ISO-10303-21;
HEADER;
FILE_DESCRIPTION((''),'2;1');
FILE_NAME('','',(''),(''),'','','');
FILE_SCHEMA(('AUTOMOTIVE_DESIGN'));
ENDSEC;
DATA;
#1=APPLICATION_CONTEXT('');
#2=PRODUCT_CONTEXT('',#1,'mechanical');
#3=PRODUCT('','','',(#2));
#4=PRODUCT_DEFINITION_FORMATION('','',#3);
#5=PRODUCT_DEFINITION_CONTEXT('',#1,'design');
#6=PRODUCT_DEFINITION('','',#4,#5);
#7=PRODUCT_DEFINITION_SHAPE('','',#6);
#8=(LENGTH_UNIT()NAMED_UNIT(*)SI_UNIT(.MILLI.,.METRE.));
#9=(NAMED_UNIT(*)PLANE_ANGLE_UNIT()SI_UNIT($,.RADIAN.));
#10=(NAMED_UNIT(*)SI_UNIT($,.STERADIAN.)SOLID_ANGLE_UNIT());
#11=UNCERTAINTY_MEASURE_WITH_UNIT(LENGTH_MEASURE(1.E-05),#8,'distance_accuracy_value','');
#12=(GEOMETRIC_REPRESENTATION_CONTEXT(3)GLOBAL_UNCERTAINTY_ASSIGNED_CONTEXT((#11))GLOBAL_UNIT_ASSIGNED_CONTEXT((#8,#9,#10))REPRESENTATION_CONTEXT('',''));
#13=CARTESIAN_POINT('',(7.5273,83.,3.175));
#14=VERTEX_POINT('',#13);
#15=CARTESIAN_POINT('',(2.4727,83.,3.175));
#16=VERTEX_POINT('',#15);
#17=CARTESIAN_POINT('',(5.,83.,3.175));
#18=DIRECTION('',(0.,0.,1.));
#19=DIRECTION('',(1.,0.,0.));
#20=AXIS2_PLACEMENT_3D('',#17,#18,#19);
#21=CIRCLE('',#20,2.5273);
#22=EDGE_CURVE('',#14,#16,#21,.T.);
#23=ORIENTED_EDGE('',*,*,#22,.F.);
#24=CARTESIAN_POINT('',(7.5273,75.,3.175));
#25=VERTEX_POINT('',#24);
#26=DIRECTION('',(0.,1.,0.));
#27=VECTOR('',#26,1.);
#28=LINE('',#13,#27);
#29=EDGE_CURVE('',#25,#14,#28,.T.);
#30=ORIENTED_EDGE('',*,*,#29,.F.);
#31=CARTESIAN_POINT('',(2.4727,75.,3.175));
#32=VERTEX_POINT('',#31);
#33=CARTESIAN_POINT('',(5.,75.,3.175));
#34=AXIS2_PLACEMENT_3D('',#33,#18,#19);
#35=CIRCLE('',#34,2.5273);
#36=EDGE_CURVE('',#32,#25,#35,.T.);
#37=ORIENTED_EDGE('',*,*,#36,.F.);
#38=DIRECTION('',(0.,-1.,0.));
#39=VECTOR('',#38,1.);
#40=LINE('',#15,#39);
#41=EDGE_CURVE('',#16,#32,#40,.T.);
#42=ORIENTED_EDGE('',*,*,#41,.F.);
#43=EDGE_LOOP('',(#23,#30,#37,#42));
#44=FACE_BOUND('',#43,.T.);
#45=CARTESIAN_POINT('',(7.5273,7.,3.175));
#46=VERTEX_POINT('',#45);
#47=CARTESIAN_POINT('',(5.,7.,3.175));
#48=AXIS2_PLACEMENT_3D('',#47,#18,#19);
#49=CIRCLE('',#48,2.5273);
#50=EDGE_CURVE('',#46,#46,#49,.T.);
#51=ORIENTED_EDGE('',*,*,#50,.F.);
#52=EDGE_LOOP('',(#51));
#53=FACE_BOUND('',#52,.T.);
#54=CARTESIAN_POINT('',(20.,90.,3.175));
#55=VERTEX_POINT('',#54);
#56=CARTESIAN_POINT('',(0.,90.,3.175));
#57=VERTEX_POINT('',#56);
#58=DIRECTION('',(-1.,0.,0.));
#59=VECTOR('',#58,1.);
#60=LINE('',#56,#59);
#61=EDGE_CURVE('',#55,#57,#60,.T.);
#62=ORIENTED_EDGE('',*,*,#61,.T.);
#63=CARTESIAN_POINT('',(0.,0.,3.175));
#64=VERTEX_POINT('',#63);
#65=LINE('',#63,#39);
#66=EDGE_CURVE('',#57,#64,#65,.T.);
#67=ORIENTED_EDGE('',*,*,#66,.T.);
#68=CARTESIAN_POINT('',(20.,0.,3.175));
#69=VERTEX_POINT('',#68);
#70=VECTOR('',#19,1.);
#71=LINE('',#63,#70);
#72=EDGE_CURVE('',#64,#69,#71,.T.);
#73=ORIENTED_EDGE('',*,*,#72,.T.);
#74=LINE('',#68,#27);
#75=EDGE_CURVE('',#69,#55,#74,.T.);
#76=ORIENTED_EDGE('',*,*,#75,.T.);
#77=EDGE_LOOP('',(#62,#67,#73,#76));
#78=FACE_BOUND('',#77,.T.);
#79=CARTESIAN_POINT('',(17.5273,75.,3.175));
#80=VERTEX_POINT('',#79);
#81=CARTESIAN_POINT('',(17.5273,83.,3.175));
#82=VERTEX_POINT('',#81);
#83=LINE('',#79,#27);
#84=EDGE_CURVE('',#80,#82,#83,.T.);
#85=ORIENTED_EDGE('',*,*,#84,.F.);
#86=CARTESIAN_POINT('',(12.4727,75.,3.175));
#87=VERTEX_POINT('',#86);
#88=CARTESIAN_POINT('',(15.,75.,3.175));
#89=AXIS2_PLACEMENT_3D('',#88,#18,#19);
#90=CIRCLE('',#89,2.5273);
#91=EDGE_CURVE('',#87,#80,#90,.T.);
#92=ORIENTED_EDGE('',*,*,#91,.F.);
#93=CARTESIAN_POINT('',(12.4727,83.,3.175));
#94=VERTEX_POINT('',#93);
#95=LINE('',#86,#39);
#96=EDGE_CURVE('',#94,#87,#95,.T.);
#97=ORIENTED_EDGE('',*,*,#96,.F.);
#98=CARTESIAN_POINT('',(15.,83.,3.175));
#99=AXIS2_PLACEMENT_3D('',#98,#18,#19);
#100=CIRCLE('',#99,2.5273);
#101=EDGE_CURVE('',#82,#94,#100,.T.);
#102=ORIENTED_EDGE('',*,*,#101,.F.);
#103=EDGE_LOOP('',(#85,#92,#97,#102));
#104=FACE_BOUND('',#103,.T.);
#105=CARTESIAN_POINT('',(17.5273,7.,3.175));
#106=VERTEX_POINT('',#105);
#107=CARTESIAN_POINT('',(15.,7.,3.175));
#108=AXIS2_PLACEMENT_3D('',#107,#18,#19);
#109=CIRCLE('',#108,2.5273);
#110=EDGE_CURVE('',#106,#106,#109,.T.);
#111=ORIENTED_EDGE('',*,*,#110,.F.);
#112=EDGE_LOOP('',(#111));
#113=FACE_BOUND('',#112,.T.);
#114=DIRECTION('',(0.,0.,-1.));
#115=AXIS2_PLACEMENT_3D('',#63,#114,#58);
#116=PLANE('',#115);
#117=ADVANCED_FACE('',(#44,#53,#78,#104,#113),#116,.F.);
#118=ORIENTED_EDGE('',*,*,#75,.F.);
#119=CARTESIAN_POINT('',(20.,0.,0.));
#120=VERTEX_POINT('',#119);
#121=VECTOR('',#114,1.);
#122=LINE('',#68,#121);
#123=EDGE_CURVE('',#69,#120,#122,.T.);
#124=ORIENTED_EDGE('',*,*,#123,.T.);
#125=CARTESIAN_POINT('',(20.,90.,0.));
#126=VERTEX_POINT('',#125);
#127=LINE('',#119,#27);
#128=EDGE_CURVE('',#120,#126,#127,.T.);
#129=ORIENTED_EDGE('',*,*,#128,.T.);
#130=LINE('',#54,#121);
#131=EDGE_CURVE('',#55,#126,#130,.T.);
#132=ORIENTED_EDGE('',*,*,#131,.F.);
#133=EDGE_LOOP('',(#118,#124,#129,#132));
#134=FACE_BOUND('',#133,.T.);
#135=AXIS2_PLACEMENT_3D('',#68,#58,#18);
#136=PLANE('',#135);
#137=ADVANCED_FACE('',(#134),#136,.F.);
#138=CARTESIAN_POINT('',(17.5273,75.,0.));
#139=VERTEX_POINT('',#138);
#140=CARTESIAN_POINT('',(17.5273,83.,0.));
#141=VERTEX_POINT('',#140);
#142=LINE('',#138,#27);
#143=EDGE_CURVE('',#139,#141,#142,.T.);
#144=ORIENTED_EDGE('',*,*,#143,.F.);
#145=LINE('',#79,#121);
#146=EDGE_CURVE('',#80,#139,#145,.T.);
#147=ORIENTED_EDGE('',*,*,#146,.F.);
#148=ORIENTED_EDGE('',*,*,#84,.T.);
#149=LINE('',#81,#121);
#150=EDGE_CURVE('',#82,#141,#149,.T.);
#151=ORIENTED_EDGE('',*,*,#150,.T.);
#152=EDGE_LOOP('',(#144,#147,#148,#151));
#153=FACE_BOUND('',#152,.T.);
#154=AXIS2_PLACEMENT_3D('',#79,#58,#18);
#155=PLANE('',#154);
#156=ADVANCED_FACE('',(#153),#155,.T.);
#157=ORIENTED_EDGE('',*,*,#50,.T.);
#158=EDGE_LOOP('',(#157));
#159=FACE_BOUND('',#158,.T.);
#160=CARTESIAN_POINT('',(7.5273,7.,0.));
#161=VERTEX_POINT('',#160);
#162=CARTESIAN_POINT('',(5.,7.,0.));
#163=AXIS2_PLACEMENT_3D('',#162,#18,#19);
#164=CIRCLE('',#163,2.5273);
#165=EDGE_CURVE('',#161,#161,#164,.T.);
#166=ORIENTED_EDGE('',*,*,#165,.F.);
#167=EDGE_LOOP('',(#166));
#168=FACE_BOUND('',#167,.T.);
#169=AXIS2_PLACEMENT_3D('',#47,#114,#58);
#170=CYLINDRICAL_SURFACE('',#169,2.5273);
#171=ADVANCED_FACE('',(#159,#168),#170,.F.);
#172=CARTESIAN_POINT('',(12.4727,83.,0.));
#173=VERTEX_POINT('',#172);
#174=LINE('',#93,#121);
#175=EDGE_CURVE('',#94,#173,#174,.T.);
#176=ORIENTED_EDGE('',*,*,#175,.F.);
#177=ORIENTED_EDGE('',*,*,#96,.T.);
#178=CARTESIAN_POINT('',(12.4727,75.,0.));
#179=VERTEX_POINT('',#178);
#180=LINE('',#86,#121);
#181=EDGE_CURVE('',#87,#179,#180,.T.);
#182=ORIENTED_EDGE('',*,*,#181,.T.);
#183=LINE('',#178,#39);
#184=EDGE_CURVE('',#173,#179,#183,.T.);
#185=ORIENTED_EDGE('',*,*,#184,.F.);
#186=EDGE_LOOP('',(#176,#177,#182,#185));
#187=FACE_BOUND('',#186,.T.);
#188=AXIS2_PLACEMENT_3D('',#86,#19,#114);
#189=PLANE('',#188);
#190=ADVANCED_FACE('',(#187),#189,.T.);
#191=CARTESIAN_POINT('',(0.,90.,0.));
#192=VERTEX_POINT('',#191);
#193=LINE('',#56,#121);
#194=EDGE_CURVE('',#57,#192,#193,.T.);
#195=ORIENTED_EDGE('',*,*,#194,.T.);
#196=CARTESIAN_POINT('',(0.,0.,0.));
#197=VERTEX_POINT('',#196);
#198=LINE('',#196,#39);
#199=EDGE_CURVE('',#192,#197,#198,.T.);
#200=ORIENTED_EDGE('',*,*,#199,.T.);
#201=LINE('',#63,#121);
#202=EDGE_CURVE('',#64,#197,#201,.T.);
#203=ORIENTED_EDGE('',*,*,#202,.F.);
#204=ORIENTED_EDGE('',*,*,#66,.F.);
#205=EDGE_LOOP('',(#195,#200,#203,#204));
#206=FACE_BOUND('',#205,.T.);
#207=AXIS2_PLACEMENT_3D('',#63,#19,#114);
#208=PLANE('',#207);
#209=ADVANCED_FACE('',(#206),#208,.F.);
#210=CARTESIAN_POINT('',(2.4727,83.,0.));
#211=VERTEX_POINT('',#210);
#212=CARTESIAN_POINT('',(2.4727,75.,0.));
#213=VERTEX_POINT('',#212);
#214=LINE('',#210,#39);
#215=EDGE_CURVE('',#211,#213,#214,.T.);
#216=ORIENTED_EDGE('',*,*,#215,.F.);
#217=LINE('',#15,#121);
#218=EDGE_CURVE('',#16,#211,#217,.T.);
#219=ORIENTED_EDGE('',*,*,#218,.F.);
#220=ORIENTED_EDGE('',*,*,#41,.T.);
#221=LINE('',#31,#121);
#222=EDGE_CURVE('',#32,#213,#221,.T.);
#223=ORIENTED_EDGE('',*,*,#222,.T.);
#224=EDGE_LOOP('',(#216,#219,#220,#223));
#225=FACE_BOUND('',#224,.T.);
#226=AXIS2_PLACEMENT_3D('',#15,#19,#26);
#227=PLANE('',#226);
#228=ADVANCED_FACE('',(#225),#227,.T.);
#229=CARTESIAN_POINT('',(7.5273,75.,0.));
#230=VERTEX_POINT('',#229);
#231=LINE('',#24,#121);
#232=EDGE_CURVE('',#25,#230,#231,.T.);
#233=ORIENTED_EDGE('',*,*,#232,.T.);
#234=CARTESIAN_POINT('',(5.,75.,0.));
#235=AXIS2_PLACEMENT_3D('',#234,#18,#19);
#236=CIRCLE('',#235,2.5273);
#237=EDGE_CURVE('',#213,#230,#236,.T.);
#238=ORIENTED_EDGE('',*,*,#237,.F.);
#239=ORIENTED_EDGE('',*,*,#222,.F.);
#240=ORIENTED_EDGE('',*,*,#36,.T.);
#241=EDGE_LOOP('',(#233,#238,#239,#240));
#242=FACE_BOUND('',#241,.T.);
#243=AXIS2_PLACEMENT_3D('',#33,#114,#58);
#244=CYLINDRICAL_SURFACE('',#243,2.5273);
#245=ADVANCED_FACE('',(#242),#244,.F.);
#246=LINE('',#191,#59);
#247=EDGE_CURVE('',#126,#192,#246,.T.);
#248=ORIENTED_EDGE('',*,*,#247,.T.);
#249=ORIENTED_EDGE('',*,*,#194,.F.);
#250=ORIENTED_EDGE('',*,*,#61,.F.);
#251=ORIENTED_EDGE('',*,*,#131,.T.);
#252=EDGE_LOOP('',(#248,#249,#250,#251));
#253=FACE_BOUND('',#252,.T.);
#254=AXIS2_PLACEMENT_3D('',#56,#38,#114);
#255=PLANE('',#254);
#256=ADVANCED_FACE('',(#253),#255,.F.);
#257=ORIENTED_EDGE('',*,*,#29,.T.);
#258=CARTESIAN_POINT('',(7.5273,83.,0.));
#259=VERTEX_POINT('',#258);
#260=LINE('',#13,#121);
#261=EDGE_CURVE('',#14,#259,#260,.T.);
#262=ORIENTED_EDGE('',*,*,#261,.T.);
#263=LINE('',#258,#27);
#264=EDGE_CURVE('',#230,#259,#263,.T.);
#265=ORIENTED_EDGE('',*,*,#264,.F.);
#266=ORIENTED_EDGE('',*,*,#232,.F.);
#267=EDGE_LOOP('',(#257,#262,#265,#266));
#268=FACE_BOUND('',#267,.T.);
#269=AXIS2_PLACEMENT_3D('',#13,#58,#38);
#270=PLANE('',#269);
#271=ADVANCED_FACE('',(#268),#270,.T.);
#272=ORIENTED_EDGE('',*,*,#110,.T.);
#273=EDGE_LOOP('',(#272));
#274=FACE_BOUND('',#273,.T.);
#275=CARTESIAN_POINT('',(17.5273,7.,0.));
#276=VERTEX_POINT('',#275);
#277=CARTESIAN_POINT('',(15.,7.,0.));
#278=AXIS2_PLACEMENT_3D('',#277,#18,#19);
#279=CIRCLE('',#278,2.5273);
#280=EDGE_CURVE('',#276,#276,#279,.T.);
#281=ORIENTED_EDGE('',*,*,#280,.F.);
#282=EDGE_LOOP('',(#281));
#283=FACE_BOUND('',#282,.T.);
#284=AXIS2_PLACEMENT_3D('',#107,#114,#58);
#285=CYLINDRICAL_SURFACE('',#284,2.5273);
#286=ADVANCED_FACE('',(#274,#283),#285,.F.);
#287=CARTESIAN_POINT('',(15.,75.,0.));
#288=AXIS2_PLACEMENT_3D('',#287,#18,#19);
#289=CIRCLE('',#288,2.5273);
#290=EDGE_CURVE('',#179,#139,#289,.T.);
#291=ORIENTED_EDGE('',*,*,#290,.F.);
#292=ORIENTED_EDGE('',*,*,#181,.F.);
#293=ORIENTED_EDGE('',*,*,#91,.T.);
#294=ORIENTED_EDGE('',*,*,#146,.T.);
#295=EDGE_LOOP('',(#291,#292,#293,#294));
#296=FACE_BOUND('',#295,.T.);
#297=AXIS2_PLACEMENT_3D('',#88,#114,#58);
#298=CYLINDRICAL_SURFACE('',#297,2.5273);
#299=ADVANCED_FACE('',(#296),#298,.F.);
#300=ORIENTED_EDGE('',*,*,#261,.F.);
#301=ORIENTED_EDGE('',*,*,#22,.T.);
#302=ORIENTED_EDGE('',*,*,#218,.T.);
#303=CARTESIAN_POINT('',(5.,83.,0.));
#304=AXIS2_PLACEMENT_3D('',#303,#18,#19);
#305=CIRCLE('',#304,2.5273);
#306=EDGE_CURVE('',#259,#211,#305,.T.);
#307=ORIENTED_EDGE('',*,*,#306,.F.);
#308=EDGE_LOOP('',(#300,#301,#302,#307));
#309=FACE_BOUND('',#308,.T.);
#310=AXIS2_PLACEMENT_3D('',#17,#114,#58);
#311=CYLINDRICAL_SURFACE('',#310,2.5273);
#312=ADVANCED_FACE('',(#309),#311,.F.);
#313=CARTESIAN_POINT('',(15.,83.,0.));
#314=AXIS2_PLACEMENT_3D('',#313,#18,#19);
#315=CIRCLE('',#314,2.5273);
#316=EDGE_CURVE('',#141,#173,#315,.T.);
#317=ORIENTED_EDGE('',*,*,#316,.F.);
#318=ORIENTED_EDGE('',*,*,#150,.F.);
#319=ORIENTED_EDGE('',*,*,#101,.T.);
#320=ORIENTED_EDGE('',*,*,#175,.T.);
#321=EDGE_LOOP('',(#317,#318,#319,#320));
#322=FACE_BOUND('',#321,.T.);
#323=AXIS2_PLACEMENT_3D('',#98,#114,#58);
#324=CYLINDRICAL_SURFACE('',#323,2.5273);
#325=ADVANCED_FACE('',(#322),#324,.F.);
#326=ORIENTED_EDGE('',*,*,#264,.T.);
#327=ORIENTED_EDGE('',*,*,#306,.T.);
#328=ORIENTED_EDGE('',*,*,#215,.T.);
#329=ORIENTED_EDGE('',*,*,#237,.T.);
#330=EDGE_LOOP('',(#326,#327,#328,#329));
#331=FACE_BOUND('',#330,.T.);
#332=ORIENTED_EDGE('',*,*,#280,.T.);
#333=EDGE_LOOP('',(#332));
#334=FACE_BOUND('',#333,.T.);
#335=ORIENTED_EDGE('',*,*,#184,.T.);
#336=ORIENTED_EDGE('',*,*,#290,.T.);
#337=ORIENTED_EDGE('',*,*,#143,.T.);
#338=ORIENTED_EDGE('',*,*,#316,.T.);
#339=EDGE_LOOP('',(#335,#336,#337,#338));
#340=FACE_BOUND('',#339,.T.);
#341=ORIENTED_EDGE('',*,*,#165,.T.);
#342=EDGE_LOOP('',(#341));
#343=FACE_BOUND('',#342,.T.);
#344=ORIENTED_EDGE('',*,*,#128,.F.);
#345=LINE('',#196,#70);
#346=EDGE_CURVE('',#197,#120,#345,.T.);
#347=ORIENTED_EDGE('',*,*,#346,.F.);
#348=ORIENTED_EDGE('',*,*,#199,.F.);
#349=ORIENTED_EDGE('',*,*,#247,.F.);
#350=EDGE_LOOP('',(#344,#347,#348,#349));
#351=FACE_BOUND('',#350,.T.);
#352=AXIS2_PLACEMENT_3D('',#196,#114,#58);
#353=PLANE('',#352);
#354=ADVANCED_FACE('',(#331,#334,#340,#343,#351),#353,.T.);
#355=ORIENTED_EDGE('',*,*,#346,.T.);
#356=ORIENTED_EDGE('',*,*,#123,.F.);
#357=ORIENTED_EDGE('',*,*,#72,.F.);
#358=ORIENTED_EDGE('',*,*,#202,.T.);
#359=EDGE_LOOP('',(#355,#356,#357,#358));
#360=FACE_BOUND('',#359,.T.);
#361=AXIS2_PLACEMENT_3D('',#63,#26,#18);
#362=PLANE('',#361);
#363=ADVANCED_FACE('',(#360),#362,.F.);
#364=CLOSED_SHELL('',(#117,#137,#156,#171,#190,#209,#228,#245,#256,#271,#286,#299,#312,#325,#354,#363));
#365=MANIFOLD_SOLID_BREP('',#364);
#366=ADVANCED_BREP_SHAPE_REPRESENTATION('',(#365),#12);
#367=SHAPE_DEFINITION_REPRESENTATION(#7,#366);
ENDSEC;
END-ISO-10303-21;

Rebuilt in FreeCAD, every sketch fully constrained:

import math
import FreeCAD as App
import Part
import Sketcher
from FreeCAD import Vector

doc = App.newDocument("Part")
body = doc.addObject("PartDesign::Body", "Body")

sketch1 = body.newObject("Sketcher::SketchObject", "Sketch")
sketch1.AttachmentSupport = (doc.getObject("XY_Plane"), [""])
sketch1.MapMode = "FlatFace"
sketch1.addGeometry(Part.LineSegment(Vector(0, 90, 0), Vector(0, 0, 0)), False)
sketch1.addGeometry(Part.LineSegment(Vector(0, 0, 0), Vector(20, 0, 0)), False)
sketch1.addGeometry(Part.LineSegment(Vector(20, 0, 0), Vector(20, 90, 0)), False)
sketch1.addGeometry(Part.LineSegment(Vector(20, 90, 0), Vector(0, 90, 0)), False)
sketch1.addGeometry(Part.Circle(Vector(5, 7, 0), Vector(0, 0, 1), 2.5273), False)
sketch1.addGeometry(Part.Circle(Vector(15, 7, 0), Vector(0, 0, 1), 2.5273), False)
sketch1.addGeometry(Part.ArcOfCircle(Part.Circle(Vector(5, 83, 0), Vector(0, 0, 1), 2.5273), math.radians(0), math.radians(180)), False)
sketch1.addGeometry(Part.LineSegment(Vector(7.5273, 83, 0), Vector(7.5273, 75, 0)), False)
sketch1.addGeometry(Part.ArcOfCircle(Part.Circle(Vector(5, 75, 0), Vector(0, 0, 1), 2.5273), math.radians(180), math.radians(360)), False)
sketch1.addGeometry(Part.LineSegment(Vector(2.4727, 75, 0), Vector(2.4727, 83, 0)), False)
sketch1.addGeometry(Part.ArcOfCircle(Part.Circle(Vector(15, 75, 0), Vector(0, 0, 1), 2.5273), math.radians(180), math.radians(360)), False)
sketch1.addGeometry(Part.LineSegment(Vector(12.4727, 75, 0), Vector(12.4727, 83, 0)), False)
sketch1.addGeometry(Part.ArcOfCircle(Part.Circle(Vector(15, 83, 0), Vector(0, 0, 1), 2.5273), math.radians(0), math.radians(180)), False)
sketch1.addGeometry(Part.LineSegment(Vector(17.5273, 83, 0), Vector(17.5273, 75, 0)), False)
sketch1.addConstraint(Sketcher.Constraint("Coincident", 0, 2, 1, 1))
sketch1.addConstraint(Sketcher.Constraint("Coincident", 1, 2, 2, 1))
sketch1.addConstraint(Sketcher.Constraint("Coincident", 2, 2, 3, 1))
sketch1.addConstraint(Sketcher.Constraint("Coincident", 3, 2, 0, 1))
sketch1.addConstraint(Sketcher.Constraint("Tangent", 6, 1, 7, 1))
sketch1.addConstraint(Sketcher.Constraint("Tangent", 7, 2, 8, 2))
sketch1.addConstraint(Sketcher.Constraint("Tangent", 8, 1, 9, 1))
sketch1.addConstraint(Sketcher.Constraint("Tangent", 9, 2, 6, 2))
sketch1.addConstraint(Sketcher.Constraint("Tangent", 10, 1, 11, 1))
sketch1.addConstraint(Sketcher.Constraint("Tangent", 11, 2, 12, 2))
sketch1.addConstraint(Sketcher.Constraint("Tangent", 12, 1, 13, 1))
sketch1.addConstraint(Sketcher.Constraint("Tangent", 13, 2, 10, 2))
sketch1.addConstraint(Sketcher.Constraint("Vertical", 0))
sketch1.addConstraint(Sketcher.Constraint("Horizontal", 1))
sketch1.addConstraint(Sketcher.Constraint("Vertical", 2))
sketch1.addConstraint(Sketcher.Constraint("Horizontal", 3))
sketch1.addConstraint(Sketcher.Constraint("Vertical", 7))
sketch1.addConstraint(Sketcher.Constraint("Vertical", 9))
sketch1.addConstraint(Sketcher.Constraint("Vertical", 11))
sketch1.addConstraint(Sketcher.Constraint("Vertical", 13))
sketch1.addConstraint(Sketcher.Constraint("Coincident", 0, 2, -1, 1))
sketch1.addConstraint(Sketcher.Constraint("Equal", 4, 5))
sketch1.addConstraint(Sketcher.Constraint("Equal", 5, 6))
sketch1.addConstraint(Sketcher.Constraint("Equal", 8, 10))
sketch1.addConstraint(Sketcher.Constraint("Horizontal", 4, 3, 5, 3))
sketch1.addConstraint(Sketcher.Constraint("Horizontal", 8, 3, 10, 3))
sketch1.addConstraint(Sketcher.Constraint("Horizontal", 6, 3, 12, 3))
sketch1.addConstraint(Sketcher.Constraint("Vertical", 4, 3, 6, 3))
sketch1.addConstraint(Sketcher.Constraint("Vertical", 5, 3, 10, 3))
sketch1.addConstraint(Sketcher.Constraint("DistanceX", 1, 1, 1, 2, 20.0))
sketch1.addConstraint(Sketcher.Constraint("DistanceY", 0, 2, 0, 1, 90.0))
sketch1.addConstraint(Sketcher.Constraint("DistanceY", 7, 2, 7, 1, 8.0))
sketch1.addConstraint(Sketcher.Constraint("DistanceX", -1, 1, 4, 3, 5.0))
sketch1.addConstraint(Sketcher.Constraint("DistanceY", -1, 1, 4, 3, 7.0))
sketch1.addConstraint(Sketcher.Constraint("DistanceX", -1, 1, 5, 3, 15.0))
sketch1.addConstraint(Sketcher.Constraint("DistanceY", -1, 1, 6, 3, 83.0))
sketch1.addConstraint(Sketcher.Constraint("Diameter", 4, 5.0546))
pad1 = body.newObject("PartDesign::Pad", "Pad")
pad1.Profile = sketch1
pad1.Length = 3.175

doc.recompute()
